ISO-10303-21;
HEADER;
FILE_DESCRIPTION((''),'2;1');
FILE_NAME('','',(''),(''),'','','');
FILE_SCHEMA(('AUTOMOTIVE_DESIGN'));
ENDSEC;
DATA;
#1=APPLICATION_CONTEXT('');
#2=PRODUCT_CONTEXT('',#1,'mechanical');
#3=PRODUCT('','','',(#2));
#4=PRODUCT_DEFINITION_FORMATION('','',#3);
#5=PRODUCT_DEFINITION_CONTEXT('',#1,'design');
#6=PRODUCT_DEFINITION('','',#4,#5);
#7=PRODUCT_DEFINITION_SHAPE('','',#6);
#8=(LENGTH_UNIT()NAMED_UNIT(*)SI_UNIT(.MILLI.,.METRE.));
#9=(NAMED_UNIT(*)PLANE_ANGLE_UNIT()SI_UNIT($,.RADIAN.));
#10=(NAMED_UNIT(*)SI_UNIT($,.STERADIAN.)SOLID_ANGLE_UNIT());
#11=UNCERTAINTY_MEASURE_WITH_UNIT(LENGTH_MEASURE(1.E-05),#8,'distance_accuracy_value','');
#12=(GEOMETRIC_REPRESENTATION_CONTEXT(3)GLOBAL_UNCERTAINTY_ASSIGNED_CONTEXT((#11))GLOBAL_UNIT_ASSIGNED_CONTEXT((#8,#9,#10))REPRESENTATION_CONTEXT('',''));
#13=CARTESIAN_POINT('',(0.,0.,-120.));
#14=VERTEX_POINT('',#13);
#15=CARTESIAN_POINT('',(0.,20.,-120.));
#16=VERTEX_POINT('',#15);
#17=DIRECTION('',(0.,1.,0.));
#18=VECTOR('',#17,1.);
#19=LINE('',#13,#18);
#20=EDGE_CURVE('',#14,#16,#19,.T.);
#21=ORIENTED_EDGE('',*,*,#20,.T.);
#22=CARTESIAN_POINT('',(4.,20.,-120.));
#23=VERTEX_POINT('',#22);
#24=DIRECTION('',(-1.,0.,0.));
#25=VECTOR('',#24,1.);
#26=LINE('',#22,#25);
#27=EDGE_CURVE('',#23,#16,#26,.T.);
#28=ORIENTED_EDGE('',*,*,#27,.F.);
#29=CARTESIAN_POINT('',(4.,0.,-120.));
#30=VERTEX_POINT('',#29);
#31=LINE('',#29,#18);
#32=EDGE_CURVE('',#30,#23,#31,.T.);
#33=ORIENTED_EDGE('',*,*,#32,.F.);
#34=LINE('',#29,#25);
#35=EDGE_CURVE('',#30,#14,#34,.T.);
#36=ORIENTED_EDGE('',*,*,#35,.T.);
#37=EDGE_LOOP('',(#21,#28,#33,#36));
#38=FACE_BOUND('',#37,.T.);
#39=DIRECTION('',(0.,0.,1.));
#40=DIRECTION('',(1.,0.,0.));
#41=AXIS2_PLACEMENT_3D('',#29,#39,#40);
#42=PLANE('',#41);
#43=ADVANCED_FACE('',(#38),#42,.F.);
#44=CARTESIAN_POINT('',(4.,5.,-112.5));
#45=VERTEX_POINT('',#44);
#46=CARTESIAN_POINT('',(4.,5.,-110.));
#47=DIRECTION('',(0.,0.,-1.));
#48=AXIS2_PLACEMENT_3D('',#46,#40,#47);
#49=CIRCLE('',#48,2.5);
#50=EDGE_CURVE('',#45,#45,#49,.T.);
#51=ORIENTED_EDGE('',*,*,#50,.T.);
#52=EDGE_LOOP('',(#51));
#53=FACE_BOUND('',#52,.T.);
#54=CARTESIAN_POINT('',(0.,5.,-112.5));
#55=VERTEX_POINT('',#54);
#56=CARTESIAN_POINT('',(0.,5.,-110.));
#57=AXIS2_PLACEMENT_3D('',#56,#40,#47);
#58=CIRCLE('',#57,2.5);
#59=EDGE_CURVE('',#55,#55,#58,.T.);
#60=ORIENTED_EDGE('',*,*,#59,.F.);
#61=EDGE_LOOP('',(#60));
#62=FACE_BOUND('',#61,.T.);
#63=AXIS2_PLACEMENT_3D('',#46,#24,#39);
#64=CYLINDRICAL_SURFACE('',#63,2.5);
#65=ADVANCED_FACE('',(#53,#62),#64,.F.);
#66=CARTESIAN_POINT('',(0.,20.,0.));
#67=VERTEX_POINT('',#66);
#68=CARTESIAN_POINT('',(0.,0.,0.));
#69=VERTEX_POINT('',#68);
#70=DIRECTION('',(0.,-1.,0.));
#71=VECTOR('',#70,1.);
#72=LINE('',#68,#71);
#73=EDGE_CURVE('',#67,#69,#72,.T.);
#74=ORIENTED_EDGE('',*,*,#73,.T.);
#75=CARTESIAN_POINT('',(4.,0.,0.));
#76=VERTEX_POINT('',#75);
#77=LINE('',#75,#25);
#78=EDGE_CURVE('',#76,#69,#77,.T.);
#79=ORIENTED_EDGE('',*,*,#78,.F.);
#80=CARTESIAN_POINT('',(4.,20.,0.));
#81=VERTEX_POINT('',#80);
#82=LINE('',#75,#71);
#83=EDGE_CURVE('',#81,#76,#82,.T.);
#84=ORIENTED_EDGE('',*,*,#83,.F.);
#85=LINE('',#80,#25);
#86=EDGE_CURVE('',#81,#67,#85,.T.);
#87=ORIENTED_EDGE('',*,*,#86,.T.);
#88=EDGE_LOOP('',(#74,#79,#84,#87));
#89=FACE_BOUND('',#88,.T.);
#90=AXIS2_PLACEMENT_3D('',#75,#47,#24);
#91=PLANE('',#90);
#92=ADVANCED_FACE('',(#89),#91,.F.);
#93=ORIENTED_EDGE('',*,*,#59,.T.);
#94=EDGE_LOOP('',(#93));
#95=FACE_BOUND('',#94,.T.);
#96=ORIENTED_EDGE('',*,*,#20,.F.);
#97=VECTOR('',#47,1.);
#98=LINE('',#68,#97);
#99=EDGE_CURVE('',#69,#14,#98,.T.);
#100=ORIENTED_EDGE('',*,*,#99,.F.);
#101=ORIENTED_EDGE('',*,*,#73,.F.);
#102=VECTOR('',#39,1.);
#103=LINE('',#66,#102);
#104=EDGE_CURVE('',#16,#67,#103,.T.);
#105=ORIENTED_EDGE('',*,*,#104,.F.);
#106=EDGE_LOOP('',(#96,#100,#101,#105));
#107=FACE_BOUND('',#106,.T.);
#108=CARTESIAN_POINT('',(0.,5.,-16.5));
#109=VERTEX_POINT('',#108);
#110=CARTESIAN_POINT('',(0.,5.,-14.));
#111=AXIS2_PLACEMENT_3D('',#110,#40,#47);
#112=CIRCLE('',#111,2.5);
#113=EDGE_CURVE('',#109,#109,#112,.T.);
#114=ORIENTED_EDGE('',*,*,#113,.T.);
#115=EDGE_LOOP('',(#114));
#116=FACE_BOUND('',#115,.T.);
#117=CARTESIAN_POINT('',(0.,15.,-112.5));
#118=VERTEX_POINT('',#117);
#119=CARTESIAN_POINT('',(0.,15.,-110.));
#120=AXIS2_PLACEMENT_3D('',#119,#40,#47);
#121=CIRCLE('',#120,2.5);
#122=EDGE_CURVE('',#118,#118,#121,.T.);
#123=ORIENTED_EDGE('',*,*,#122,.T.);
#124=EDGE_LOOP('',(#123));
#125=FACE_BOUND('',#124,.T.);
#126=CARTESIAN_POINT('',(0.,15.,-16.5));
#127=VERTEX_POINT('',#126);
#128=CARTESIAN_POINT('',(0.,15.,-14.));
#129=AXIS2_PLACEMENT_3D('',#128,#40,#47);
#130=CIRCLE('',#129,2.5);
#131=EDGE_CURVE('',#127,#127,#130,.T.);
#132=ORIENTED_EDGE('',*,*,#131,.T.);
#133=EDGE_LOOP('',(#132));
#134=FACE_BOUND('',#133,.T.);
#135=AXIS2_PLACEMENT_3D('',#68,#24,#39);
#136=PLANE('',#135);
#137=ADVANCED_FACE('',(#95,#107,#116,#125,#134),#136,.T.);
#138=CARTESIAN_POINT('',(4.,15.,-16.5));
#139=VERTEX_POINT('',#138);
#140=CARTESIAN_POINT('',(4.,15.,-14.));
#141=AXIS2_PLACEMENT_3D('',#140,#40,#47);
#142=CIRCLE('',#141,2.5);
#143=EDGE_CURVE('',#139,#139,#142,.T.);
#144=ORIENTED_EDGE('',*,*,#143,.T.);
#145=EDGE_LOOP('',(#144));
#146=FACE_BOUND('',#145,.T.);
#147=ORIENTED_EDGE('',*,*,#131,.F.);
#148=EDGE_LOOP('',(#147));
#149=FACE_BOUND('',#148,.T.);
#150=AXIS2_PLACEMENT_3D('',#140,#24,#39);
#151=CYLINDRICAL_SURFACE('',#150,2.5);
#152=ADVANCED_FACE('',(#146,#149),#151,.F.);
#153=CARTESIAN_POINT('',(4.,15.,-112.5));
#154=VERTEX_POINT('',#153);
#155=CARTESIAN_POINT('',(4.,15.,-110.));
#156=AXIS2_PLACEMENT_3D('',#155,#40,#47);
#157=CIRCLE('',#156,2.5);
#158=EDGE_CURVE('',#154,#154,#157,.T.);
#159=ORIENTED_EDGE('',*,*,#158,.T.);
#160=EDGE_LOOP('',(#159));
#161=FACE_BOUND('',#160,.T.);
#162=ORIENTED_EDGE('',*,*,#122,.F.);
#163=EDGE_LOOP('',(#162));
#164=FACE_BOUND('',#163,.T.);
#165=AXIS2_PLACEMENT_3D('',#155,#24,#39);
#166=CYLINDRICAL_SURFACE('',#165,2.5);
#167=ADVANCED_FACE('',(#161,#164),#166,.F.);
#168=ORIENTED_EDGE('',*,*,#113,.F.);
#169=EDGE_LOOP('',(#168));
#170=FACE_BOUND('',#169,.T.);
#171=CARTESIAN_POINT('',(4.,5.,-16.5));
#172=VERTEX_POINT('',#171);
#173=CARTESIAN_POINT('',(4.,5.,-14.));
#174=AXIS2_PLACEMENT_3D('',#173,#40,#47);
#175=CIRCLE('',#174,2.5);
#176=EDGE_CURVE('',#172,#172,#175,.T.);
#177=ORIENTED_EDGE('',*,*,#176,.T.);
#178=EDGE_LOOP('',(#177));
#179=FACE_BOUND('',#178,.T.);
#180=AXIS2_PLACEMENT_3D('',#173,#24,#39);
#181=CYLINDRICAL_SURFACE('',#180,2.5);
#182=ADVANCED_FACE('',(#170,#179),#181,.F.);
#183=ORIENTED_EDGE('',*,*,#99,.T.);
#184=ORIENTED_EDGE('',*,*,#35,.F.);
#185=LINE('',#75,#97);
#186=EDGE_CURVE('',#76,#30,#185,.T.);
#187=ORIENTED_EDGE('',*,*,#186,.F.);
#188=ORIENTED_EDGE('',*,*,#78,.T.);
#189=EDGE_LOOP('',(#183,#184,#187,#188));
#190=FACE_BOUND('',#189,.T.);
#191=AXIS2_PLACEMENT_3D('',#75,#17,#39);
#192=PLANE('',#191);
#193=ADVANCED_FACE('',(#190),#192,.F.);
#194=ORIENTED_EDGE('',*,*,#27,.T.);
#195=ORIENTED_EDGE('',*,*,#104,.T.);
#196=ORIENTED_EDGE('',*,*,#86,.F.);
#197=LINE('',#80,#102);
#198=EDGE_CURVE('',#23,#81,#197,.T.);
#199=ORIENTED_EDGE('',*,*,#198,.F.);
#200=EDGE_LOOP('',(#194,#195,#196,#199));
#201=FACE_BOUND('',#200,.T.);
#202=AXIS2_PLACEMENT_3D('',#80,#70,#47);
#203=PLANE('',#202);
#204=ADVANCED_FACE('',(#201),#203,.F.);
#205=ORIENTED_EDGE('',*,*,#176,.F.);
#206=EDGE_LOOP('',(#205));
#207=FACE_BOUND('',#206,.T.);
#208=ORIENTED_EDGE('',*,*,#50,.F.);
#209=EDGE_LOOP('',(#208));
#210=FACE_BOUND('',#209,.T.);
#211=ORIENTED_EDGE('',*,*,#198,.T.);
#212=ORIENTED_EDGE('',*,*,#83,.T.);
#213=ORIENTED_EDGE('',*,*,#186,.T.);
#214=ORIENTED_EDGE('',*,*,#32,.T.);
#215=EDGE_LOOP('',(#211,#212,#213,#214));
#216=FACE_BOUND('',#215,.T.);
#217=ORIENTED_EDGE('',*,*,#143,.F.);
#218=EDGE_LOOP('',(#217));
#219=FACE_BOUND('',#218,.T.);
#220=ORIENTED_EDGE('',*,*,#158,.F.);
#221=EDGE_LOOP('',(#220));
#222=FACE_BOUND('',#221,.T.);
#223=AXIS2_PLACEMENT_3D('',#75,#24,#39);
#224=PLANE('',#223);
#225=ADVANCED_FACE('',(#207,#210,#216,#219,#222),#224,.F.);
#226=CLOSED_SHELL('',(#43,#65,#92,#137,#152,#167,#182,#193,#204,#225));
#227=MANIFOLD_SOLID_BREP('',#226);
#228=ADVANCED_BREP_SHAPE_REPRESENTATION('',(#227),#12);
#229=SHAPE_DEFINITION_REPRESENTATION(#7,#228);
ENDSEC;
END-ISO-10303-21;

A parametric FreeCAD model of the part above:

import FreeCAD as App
import Part
import Sketcher
from FreeCAD import Vector

doc = App.newDocument("Part")
body = doc.addObject("PartDesign::Body", "Body")

# Sketch on YZ plane
sketch1 = body.newObject("Sketcher::SketchObject", "Sketch")
sketch1.AttachmentSupport = (doc.getObject("YZ_Plane"), [""])
sketch1.MapMode = "FlatFace"
sketch1.addGeometry([
    Part.LineSegment(Vector(20, 0, 0), Vector(0, 0, 0)),  # 0
    Part.LineSegment(Vector(0, 0, 0), Vector(0, -120, 0)),  # 1
    Part.LineSegment(Vector(0, -120, 0), Vector(20, -120, 0)),  # 2
    Part.LineSegment(Vector(20, -120, 0), Vector(20, 0, 0)),  # 3
    Part.Circle(Vector(5, -14, 0), Vector(0, 0, 1), 2.5),  # 4
    Part.Circle(Vector(5, -110, 0), Vector(0, 0, 1), 2.5),  # 5
    Part.Circle(Vector(15, -14, 0), Vector(0, 0, 1), 2.5),  # 6
    Part.Circle(Vector(15, -110, 0), Vector(0, 0, 1), 2.5),  # 7
], False)
sketch1.addConstraint([
    Sketcher.Constraint("Coincident", 0, 2, 1, 1),
    Sketcher.Constraint("Coincident", 1, 2, 2, 1),
    Sketcher.Constraint("Coincident", 2, 2, 3, 1),
    Sketcher.Constraint("Coincident", 3, 2, 0, 1),
    Sketcher.Constraint("Horizontal", 0),
    Sketcher.Constraint("Vertical", 1),
    Sketcher.Constraint("Horizontal", 2),
    Sketcher.Constraint("Vertical", 3),
    Sketcher.Constraint("Coincident", 0, 2, -1, 1),
    Sketcher.Constraint("Equal", 4, 5),
    Sketcher.Constraint("Equal", 5, 6),
    Sketcher.Constraint("Equal", 6, 7),
    Sketcher.Constraint("Horizontal", 4, 3, 6, 3),
    Sketcher.Constraint("Horizontal", 5, 3, 7, 3),
    Sketcher.Constraint("Vertical", 4, 3, 5, 3),
    Sketcher.Constraint("Vertical", 6, 3, 7, 3),
    Sketcher.Constraint("Diameter", 4, 5.0),
    Sketcher.Constraint("DistanceX", 0, 2, 0, 1, 20.0),
    Sketcher.Constraint("DistanceY", 1, 2, 1, 1, 120.0),
    Sketcher.Constraint("DistanceX", -1, 1, 4, 3, 5.0),
    Sketcher.Constraint("DistanceY", 4, 3, -1, 1, 14.0),
    Sketcher.Constraint("DistanceY", 5, 3, -1, 1, 110.0),
    Sketcher.Constraint("DistanceX", -1, 1, 6, 3, 15.0),
])
pad1 = body.newObject("PartDesign::Pad", "Pad")
pad1.Profile = sketch1
pad1.Length = 4

doc.recompute()
